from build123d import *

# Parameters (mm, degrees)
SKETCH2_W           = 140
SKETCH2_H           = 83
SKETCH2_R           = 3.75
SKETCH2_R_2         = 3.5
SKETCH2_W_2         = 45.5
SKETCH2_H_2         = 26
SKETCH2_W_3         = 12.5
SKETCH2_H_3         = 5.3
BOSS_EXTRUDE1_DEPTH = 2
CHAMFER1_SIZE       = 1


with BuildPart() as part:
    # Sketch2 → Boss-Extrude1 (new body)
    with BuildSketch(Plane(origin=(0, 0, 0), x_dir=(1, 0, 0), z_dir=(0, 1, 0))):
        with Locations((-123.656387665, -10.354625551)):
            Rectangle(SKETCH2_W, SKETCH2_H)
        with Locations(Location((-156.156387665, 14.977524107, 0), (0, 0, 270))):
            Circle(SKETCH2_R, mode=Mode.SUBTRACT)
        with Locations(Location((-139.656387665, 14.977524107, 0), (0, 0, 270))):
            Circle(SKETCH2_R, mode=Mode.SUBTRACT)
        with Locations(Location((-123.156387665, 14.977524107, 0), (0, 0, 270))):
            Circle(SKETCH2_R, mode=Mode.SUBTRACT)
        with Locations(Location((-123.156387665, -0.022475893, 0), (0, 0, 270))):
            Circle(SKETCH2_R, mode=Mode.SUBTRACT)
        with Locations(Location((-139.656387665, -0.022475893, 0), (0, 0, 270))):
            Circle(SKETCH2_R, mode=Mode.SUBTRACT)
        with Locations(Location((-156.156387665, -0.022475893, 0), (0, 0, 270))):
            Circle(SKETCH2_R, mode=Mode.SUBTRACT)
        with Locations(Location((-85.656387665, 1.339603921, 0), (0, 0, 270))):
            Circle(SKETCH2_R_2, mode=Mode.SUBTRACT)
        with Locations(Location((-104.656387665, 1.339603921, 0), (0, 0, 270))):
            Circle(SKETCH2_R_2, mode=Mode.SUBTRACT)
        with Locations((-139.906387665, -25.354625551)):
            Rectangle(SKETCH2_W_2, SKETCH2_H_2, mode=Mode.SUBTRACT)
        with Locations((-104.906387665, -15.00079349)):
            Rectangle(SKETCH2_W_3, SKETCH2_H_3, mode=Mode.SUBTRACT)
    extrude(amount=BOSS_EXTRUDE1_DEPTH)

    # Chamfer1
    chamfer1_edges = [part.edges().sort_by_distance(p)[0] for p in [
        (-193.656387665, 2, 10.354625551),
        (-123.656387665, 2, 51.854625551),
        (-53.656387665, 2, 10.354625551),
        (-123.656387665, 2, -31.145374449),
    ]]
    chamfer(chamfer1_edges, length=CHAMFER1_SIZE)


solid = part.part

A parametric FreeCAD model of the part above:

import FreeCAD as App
import Part
import Sketcher

V = App.Vector


def edges_at(feature, points):
    """Names of the edges that pass closest to the given points."""
    edges = feature.Shape.Edges
    near = lambda p: min(range(len(edges)), key=lambda i: edges[i].distToShape(Part.Vertex(*p))[0])
    return sorted({f"Edge{near(p) + 1}" for p in points})

doc = App.newDocument("Part")
body = doc.addObject("PartDesign::Body", "Body")

sketch1 = body.newObject("Sketcher::SketchObject", "Sketch")
sketch1.AttachmentSupport = (doc.getObject("XZ_Plane"), [""])
sketch1.MapMode = "FlatFace"
sketch1.addGeometry(Part.LineSegment(V(-193.656388, -31.145374, 0), V(-193.656388, 51.854626, 0)), False)
sketch1.addGeometry(Part.LineSegment(V(-193.656388, 51.854626, 0), V(-53.656388, 51.854626, 0)), False)
sketch1.addGeometry(Part.LineSegment(V(-53.656388, 51.854626, 0), V(-53.656388, -31.145374, 0)), False)
sketch1.addGeometry(Part.LineSegment(V(-53.656388, -31.145374, 0), V(-193.656388, -31.145374, 0)), False)
sketch1.addGeometry(Part.LineSegment(V(-117.156388, 38.354626, 0), V(-162.656388, 38.354626, 0)), False)
sketch1.addGeometry(Part.LineSegment(V(-162.656388, 38.354626, 0), V(-162.656388, 12.354626, 0)), False)
sketch1.addGeometry(Part.LineSegment(V(-162.656388, 12.354626, 0), V(-117.156388, 12.354626, 0)), False)
sketch1.addGeometry(Part.LineSegment(V(-117.156388, 12.354626, 0), V(-117.156388, 38.354626, 0)), False)
sketch1.addGeometry(Part.LineSegment(V(-98.656388, 17.650793, 0), V(-111.156388, 17.650793, 0)), False)
sketch1.addGeometry(Part.LineSegment(V(-111.156388, 17.650793, 0), V(-111.156388, 12.350793, 0)), False)
sketch1.addGeometry(Part.LineSegment(V(-111.156388, 12.350793, 0), V(-98.656388, 12.350793, 0)), False)
sketch1.addGeometry(Part.LineSegment(V(-98.656388, 12.350793, 0), V(-98.656388, 17.650793, 0)), False)
sketch1.addGeometry(Part.Circle(V(-156.156388, 0.022476, 0), V(0, 0, 1), 3.75), False)
sketch1.addGeometry(Part.Circle(V(-139.656388, 0.022476, 0), V(0, 0, 1), 3.75), False)
sketch1.addGeometry(Part.Circle(V(-123.156388, 0.022476, 0), V(0, 0, 1), 3.75), False)
sketch1.addGeometry(Part.Circle(V(-156.156388, -14.977524, 0), V(0, 0, 1), 3.75), False)
sketch1.addGeometry(Part.Circle(V(-139.656388, -14.977524, 0), V(0, 0, 1), 3.75), False)
sketch1.addGeometry(Part.Circle(V(-123.156388, -14.977524, 0), V(0, 0, 1), 3.75), False)
sketch1.addGeometry(Part.Circle(V(-104.656388, -1.339604, 0), V(0, 0, 1), 3.5), False)
sketch1.addGeometry(Part.Circle(V(-85.656388, -1.339604, 0), V(0, 0, 1), 3.5), False)
sketch1.addConstraint(Sketcher.Constraint("Coincident", 0, 2, 1, 1))
sketch1.addConstraint(Sketcher.Constraint("Coincident", 1, 2, 2, 1))
sketch1.addConstraint(Sketcher.Constraint("Coincident", 2, 2, 3, 1))
sketch1.addConstraint(Sketcher.Constraint("Coincident", 3, 2, 0, 1))
sketch1.addConstraint(Sketcher.Constraint("Coincident", 4, 2, 5, 1))
sketch1.addConstraint(Sketcher.Constraint("Coincident", 5, 2, 6, 1))
sketch1.addConstraint(Sketcher.Constraint("Coincident", 6, 2, 7, 1))
sketch1.addConstraint(Sketcher.Constraint("Coincident", 7, 2, 4, 1))
sketch1.addConstraint(Sketcher.Constraint("Coincident", 8, 2, 9, 1))
sketch1.addConstraint(Sketcher.Constraint("Coincident", 9, 2, 10, 1))
sketch1.addConstraint(Sketcher.Constraint("Coincident", 10, 2, 11, 1))
sketch1.addConstraint(Sketcher.Constraint("Coincident", 11, 2, 8, 1))
sketch1.addConstraint(Sketcher.Constraint("Vertical", 0))
sketch1.addConstraint(Sketcher.Constraint("Horizontal", 1))
sketch1.addConstraint(Sketcher.Constraint("Vertical", 2))
sketch1.addConstraint(Sketcher.Constraint("Horizontal", 3))
sketch1.addConstraint(Sketcher.Constraint("Horizontal", 4))
sketch1.addConstraint(Sketcher.Constraint("Vertical", 5))
sketch1.addConstraint(Sketcher.Constraint("Horizontal", 6))
sketch1.addConstraint(Sketcher.Constraint("Vertical", 7))
sketch1.addConstraint(Sketcher.Constraint("Horizontal", 8))
sketch1.addConstraint(Sketcher.Constraint("Vertical", 9))
sketch1.addConstraint(Sketcher.Constraint("Horizontal", 10))
sketch1.addConstraint(Sketcher.Constraint("Vertical", 11))
sketch1.addConstraint(Sketcher.Constraint("Equal", 12, 13))
sketch1.addConstraint(Sketcher.Constraint("Equal", 13, 14))
sketch1.addConstraint(Sketcher.Constraint("Equal", 14, 15))
sketch1.addConstraint(Sketcher.Constraint("Equal", 15, 16))
sketch1.addConstraint(Sketcher.Constraint("Equal", 16, 17))
sketch1.addConstraint(Sketcher.Constraint("Equal", 18, 19))
sketch1.addConstraint(Sketcher.Constraint("Horizontal", 12, 3, 13, 3))
sketch1.addConstraint(Sketcher.Constraint("Horizontal", 13, 3, 14, 3))
sketch1.addConstraint(Sketcher.Constraint("Horizontal", 15, 3, 16, 3))
sketch1.addConstraint(Sketcher.Constraint("Horizontal", 16, 3, 17, 3))
sketch1.addConstraint(Sketcher.Constraint("Horizontal", 18, 3, 19, 3))
sketch1.addConstraint(Sketcher.Constraint("Vertical", 12, 3, 15, 3))
sketch1.addConstraint(Sketcher.Constraint("Vertical", 13, 3, 16, 3))
sketch1.addConstraint(Sketcher.Constraint("Vertical", 14, 3, 17, 3))
sketch1.addConstraint(Sketcher.Constraint("Diameter", 18, 7.0))
sketch1.addConstraint(Sketcher.Constraint("Diameter", 12, 7.5))
sketch1.addConstraint(Sketcher.Constraint("DistanceX", 1, 1, 1, 2, 140.0))
sketch1.addConstraint(Sketcher.Constraint("DistanceY", 0, 1, 0, 2, 83.0))
sketch1.addConstraint(Sketcher.Constraint("DistanceY", 5, 2, 5, 1, 26.0))
sketch1.addConstraint(Sketcher.Constraint("DistanceX", 4, 2, 4, 1, 45.5))
sketch1.addConstraint(Sketcher.Constraint("DistanceX", 8, 2, 8, 1, 12.5))
sketch1.addConstraint(Sketcher.Constraint("DistanceY", 9, 2, 9, 1, 5.3))
sketch1.addConstraint(Sketcher.Constraint("DistanceX", 12, 3, 14, 3, 33.0))
sketch1.addConstraint(Sketcher.Constraint("DistanceY", 15, 3, 12, 3, 15.0))
sketch1.addConstraint(Sketcher.Constraint("DistanceX", 13, 3, 18, 3, 35.0))
sketch1.addConstraint(Sketcher.Constraint("DistanceX", 18, 3, 19, 3, 19.0))
sketch1.addConstraint(Sketcher.Constraint("DistanceX", 0, 2, 13, 3, 54.0))
sketch1.addConstraint(Sketcher.Constraint("DistanceX", 0, 2, 4, 2, 31.0))
sketch1.addConstraint(Sketcher.Constraint("DistanceX", 14, 3, 6, 2, 6.0))
sketch1.addConstraint(Sketcher.Constraint("DistanceX", 6, 2, 8, 2, 6.0))
sketch1.addConstraint(Sketcher.Constraint("DistanceY", 4, 2, 0, 2, 13.5))
sketch1.addConstraint(Sketcher.Constraint("DistanceY", 18, 3, 14, 3, 1.36208))
sketch1.addConstraint(Sketcher.Constraint("DistanceY", 12, 3, 0, 2, 51.83215))
sketch1.addConstraint(Sketcher.Constraint("DistanceX", 12, 3, -1, 1, 156.156388))
sketch1.addConstraint(Sketcher.Constraint("DistanceY", -1, 1, 12, 3, 0.022476))
sketch1.addConstraint(Sketcher.Constraint("DistanceY", -1, 1, 8, 2, 17.650793))
pad1 = body.newObject("PartDesign::Pad", "Pad")
pad1.Profile = sketch1
pad1.Length = 2
pad1.Reversed = True
doc.recompute()

chamfer = body.newObject("PartDesign::Chamfer", "Chamfer")
chamfer.Base = (pad1, edges_at(pad1, [
    (-193.656, 2, 10.355),
    (-123.656, 2, 51.855),
    (-53.656, 2, 10.355),
    (-123.656, 2, -31.145),
]))
chamfer.Size = 1

doc.recompute()
